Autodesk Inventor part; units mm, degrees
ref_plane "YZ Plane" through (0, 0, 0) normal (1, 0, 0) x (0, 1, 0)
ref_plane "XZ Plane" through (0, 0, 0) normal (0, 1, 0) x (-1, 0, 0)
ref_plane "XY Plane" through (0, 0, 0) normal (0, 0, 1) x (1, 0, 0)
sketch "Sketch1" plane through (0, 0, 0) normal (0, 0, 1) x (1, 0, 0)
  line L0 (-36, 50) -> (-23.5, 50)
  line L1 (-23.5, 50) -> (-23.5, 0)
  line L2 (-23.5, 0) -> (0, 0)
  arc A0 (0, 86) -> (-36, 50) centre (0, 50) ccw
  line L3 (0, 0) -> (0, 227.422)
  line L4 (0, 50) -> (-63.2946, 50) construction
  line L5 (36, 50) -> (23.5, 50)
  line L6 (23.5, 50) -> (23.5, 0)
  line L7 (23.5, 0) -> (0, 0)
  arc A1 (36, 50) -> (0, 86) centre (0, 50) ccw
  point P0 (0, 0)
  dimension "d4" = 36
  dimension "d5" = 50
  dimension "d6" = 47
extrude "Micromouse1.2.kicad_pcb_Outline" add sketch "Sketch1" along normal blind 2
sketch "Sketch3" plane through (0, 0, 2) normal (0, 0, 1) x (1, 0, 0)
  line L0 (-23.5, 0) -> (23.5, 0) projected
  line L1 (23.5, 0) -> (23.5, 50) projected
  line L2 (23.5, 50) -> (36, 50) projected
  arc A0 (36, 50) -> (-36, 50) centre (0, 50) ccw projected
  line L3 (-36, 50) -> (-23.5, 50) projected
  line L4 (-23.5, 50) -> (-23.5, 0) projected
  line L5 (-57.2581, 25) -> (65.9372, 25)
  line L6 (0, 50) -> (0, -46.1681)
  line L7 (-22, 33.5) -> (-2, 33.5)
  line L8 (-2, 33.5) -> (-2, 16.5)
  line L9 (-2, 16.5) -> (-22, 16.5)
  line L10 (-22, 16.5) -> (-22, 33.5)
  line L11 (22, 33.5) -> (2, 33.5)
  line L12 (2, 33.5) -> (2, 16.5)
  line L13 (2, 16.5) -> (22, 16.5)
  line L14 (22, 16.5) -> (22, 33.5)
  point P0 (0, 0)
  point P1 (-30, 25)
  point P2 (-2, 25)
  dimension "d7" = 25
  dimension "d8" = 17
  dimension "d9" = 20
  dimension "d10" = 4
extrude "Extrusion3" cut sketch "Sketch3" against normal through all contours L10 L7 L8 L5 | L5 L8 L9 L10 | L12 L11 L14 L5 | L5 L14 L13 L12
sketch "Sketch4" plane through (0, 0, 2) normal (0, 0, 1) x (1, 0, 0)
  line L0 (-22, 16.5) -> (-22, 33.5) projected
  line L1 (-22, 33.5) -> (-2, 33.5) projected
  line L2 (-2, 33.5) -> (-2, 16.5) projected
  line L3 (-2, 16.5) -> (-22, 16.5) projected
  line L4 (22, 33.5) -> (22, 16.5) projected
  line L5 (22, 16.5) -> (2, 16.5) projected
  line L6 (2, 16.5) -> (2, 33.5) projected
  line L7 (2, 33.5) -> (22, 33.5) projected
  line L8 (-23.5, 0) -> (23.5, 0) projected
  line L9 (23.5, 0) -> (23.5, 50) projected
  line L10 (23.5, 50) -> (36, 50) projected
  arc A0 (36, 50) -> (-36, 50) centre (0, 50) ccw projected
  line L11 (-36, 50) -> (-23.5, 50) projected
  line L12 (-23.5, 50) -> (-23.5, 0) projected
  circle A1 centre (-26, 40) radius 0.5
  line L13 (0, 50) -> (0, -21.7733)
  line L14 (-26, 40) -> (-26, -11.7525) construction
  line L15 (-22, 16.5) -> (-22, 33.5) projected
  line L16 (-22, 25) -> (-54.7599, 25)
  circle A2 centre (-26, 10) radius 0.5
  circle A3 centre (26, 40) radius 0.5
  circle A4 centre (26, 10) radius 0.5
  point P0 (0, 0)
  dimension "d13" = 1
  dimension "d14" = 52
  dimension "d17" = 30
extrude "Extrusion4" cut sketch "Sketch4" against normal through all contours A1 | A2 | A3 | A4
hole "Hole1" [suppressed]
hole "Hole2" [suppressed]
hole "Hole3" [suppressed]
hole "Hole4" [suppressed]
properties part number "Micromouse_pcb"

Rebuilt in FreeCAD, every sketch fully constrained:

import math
import FreeCAD as App
import Part
import Sketcher
Q = App.Units.Quantity


def add_polygon(sketch, points):
    """Adds a closed chain of lines whose ends are joined by coincident constraints."""
    first, n = sketch.GeometryCount, len(points)
    for a, b in zip(points, points[1:] + points[:1]):
        sketch.addGeometry(Part.LineSegment(App.Vector(*a, 0), App.Vector(*b, 0)), False)
    for i in range(n):
        sketch.addConstraint(Sketcher.Constraint("Coincident", first + i, 2, first + (i + 1) % n, 1))

doc = App.newDocument("Part")
body = doc.addObject("PartDesign::Body", "Body")

sketch1 = body.newObject("Sketcher::SketchObject", "Sketch")
sketch1.AttachmentSupport = (doc.getObject("XY_Plane"), [""])
sketch1.MapMode = "FlatFace"
sketch1.addGeometry(Part.LineSegment(App.Vector(-36, 50, 0), App.Vector(-24, 50, 0)), False)
sketch1.addGeometry(Part.LineSegment(App.Vector(-24, 50, 0), App.Vector(-24, 0, 0)), False)
sketch1.addGeometry(Part.LineSegment(App.Vector(-24, 0, 0), App.Vector(24, 0, 0)), False)
sketch1.addGeometry(Part.LineSegment(App.Vector(24, 0, 0), App.Vector(24, 50, 0)), False)
sketch1.addGeometry(Part.LineSegment(App.Vector(24, 50, 0), App.Vector(36, 50, 0)), False)
sketch1.addGeometry(Part.ArcOfCircle(Part.Circle(App.Vector(0, 50, 0), App.Vector(0, 0, 1), 36), math.radians(0), math.radians(180)), False)
sketch1.addConstraint(Sketcher.Constraint("Coincident", 0, 2, 1, 1))
sketch1.addConstraint(Sketcher.Constraint("Coincident", 1, 2, 2, 1))
sketch1.addConstraint(Sketcher.Constraint("Coincident", 2, 2, 3, 1))
sketch1.addConstraint(Sketcher.Constraint("Coincident", 3, 2, 4, 1))
sketch1.addConstraint(Sketcher.Constraint("Coincident", 4, 2, 5, 1))
sketch1.addConstraint(Sketcher.Constraint("Coincident", 5, 2, 0, 1))
sketch1.addConstraint(Sketcher.Constraint("Horizontal", 0))
sketch1.addConstraint(Sketcher.Constraint("Vertical", 1))
sketch1.addConstraint(Sketcher.Constraint("Horizontal", 2))
sketch1.addConstraint(Sketcher.Constraint("Vertical", 3))
sketch1.addConstraint(Sketcher.Constraint("Horizontal", 4))
sketch1.addConstraint(Sketcher.Constraint("Symmetric", 1, 2, 2, 2, -1, 1))
sketch1.addConstraint(Sketcher.Constraint("Symmetric", 4, 2, 5, 2, -2))
sketch1.addConstraint(Sketcher.Constraint("Horizontal", 5, 3, 0, 2))
sketch1.addConstraint(Sketcher.Constraint("Radius", 5, Q("36 mm")))
sketch1.addConstraint(Sketcher.Constraint("DistanceX", 2, 1, 2, 2, Q("47 mm")))
sketch1.addConstraint(Sketcher.Constraint("DistanceY", 1, 2, 1, 1, Q("50 mm")))
pad1 = body.newObject("PartDesign::Pad", "Pad")
pad1.Profile = sketch1
pad1.Length = 2

sketch2 = body.newObject("Sketcher::SketchObject", "Sketch001")
sketch2.AttachmentSupport = (doc.getObject("XY_Plane"), [""])
sketch2.MapMode = "FlatFace"
sketch2.AttachmentOffset = App.Placement(App.Vector(0, 0, 2), App.Rotation())
add_polygon(sketch2, [(-22, 34), (-22, 16), (-2, 16), (-2, 34)])
add_polygon(sketch2, [(2, 34), (2, 16), (22, 16), (22, 34)])
sketch2.addConstraint(Sketcher.Constraint("Vertical", 0))
sketch2.addConstraint(Sketcher.Constraint("Horizontal", 1))
sketch2.addConstraint(Sketcher.Constraint("Vertical", 2))
sketch2.addConstraint(Sketcher.Constraint("Horizontal", 3))
sketch2.addConstraint(Sketcher.Constraint("Vertical", 4))
sketch2.addConstraint(Sketcher.Constraint("Horizontal", 5))
sketch2.addConstraint(Sketcher.Constraint("Vertical", 6))
sketch2.addConstraint(Sketcher.Constraint("Horizontal", 7))
sketch2.addConstraint(Sketcher.Constraint("Symmetric", 1, 2, 4, 2, -2))
sketch2.addConstraint(Sketcher.Constraint("Symmetric", 3, 2, 6, 2, -2))
sketch2.addConstraint(Sketcher.Constraint("DistanceX", 1, 1, 1, 2, Q("20 mm")))
sketch2.addConstraint(Sketcher.Constraint("DistanceY", 0, 2, 0, 1, Q("17 mm")))
sketch2.addConstraint(Sketcher.Constraint("DistanceX", 1, 2, 4, 2, Q("4 mm")))
sketch2.addConstraint(Sketcher.Constraint("DistanceY", -1, 1, 0, 2, Q("16.5 mm")))
pocket1 = body.newObject("PartDesign::Pocket", "Pocket")
pocket1.Profile = sketch2
pocket1.Type = "ThroughAll"

sketch3 = body.newObject("Sketcher::SketchObject", "Sketch002")
sketch3.AttachmentSupport = (doc.getObject("XY_Plane"), [""])
sketch3.MapMode = "FlatFace"
sketch3.AttachmentOffset = App.Placement(App.Vector(0, 0, 2), App.Rotation())
sketch3.addGeometry(Part.Circle(App.Vector(-26, 40, 0), App.Vector(0, 0, 1), 0.5), False)
sketch3.addGeometry(Part.Circle(App.Vector(-26, 10, 0), App.Vector(0, 0, 1), 0.5), False)
sketch3.addGeometry(Part.Circle(App.Vector(26, 40, 0), App.Vector(0, 0, 1), 0.5), False)
sketch3.addGeometry(Part.Circle(App.Vector(26, 10, 0), App.Vector(0, 0, 1), 0.5), False)
sketch3.addConstraint(Sketcher.Constraint("Equal", 0, 1))
sketch3.addConstraint(Sketcher.Constraint("Equal", 1, 2))
sketch3.addConstraint(Sketcher.Constraint("Equal", 2, 3))
sketch3.addConstraint(Sketcher.Constraint("Symmetric", 0, 3, 2, 3, -2))
sketch3.addConstraint(Sketcher.Constraint("Symmetric", 1, 3, 3, 3, -2))
sketch3.addConstraint(Sketcher.Constraint("Vertical", 0, 3, 1, 3))
sketch3.addConstraint(Sketcher.Constraint("Diameter", 0, Q("1 mm")))
sketch3.addConstraint(Sketcher.Constraint("DistanceY", 1, 3, 0, 3, Q("30 mm")))
sketch3.addConstraint(Sketcher.Constraint("DistanceX", 0, 3, 2, 3, Q("52 mm")))
sketch3.addConstraint(Sketcher.Constraint("DistanceY", -1, 1, 0, 3, Q("40 mm")))
pocket2 = body.newObject("PartDesign::Pocket", "Pocket001")
pocket2.Profile = sketch3
pocket2.Type = "ThroughAll"

doc.recompute()
